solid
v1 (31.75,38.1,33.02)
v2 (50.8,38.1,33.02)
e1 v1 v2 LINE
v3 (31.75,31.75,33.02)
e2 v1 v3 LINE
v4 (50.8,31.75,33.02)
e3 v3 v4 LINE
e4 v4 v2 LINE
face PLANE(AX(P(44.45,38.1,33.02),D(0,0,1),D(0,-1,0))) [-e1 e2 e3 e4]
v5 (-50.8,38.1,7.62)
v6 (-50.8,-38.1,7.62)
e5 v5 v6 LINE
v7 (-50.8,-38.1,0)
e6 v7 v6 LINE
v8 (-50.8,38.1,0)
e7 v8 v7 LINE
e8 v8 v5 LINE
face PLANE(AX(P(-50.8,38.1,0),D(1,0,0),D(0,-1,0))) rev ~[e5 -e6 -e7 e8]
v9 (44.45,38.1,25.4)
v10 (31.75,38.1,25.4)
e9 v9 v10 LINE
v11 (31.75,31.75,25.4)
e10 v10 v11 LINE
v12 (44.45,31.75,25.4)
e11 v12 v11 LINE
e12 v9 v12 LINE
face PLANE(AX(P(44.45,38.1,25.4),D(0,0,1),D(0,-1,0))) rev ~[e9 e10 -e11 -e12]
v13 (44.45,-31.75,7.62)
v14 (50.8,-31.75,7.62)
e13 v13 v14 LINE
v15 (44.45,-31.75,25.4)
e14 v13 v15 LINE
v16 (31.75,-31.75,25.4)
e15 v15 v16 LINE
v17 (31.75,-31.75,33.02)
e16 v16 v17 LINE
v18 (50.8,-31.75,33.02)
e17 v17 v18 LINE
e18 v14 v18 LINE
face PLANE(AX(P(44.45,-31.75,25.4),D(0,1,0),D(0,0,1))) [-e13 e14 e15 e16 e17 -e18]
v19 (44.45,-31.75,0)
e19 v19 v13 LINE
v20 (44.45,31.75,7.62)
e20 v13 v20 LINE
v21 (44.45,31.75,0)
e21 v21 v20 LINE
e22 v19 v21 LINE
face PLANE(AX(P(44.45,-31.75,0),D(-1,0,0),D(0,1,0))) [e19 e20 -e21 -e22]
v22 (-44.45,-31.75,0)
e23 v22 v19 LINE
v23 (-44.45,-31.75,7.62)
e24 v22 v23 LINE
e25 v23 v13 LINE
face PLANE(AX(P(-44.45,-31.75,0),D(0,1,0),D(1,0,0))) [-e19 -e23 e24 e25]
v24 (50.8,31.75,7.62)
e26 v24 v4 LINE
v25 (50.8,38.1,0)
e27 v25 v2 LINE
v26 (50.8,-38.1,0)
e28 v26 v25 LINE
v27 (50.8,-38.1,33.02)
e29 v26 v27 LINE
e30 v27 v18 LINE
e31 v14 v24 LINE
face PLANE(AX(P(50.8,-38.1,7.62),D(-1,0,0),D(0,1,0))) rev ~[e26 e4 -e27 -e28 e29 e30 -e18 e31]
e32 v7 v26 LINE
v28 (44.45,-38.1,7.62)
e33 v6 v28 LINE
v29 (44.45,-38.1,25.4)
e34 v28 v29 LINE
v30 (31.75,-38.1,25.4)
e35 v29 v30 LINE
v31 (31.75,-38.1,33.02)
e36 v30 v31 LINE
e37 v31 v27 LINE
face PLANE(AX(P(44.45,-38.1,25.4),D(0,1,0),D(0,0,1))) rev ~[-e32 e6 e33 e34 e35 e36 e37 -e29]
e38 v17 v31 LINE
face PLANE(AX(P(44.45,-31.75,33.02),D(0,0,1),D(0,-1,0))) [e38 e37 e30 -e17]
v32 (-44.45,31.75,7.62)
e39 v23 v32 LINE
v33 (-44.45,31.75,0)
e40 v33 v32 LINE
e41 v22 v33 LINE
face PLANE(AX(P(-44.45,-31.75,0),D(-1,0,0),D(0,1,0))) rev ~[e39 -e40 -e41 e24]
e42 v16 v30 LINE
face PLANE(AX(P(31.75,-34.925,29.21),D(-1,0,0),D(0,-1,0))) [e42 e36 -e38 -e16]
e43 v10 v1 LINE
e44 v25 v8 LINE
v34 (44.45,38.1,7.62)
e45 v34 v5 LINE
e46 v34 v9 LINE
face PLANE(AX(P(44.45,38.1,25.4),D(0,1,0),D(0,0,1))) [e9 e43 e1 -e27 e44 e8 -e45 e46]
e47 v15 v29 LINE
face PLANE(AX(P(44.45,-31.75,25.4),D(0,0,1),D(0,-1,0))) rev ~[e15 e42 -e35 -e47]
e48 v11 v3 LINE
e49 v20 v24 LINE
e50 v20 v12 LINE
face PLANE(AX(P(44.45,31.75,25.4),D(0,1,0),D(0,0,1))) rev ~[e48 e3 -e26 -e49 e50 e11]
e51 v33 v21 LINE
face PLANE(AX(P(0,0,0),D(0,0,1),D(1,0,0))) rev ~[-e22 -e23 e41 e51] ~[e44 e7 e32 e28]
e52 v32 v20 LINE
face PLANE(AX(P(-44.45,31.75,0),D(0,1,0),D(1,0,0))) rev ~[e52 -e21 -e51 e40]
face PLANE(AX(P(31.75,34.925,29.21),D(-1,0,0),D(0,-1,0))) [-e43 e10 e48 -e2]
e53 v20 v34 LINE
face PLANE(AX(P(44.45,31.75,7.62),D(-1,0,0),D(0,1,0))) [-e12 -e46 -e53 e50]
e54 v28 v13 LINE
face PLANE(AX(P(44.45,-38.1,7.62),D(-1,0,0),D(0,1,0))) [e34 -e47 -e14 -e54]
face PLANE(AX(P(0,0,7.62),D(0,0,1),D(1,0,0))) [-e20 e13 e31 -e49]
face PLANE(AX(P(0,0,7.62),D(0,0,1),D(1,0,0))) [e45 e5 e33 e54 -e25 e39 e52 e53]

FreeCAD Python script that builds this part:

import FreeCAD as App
import Part
import Sketcher
from FreeCAD import Vector
Q = App.Units.Quantity

doc = App.newDocument("Part")
params = doc.addObject("Spreadsheet::Sheet", "Params")
for row, (alias, value) in enumerate([
    ("sketch1_width", "4 in"),
    ("sketch1_height", "3 in"),
    ("sketch1_width2", "3.5 in"),
    ("sketch1_height2", "2.5 in"),
    ("pad1_length", "0.3 in"),
    ("sketch2_width", "0.25 in"),
    ("pad2_length", "1 in"),
    ("sketch3_height", "0.3 in"),
    ("sketch3_width", "0.25 in"),
    ("pad3_length", "0.5 in"),
    ("sketch4_height", "0.3 in"),
    ("sketch4_width", "0.25 in"),
    ("pad4_length", "0.5 in"),
], start=1):
    params.set(f"A{row}", alias)
    params.set(f"B{row}", "=" + value)
    params.setAlias(f"B{row}", alias)

body = doc.addObject("PartDesign::Body", "Body")

# Sketch on XY plane
sketch1 = body.newObject("Sketcher::SketchObject", "Sketch")
sketch1.AttachmentSupport = (doc.getObject("XY_Plane"), [""])
sketch1.MapMode = "FlatFace"
sketch1.addGeometry(Part.LineSegment(Vector(51, 38, 0), Vector(-51, 38, 0)), False)
sketch1.addGeometry(Part.LineSegment(Vector(-51, 38, 0), Vector(-51, -38, 0)), False)
sketch1.addGeometry(Part.LineSegment(Vector(-51, -38, 0), Vector(51, -38, 0)), False)
sketch1.addGeometry(Part.LineSegment(Vector(51, -38, 0), Vector(51, 38, 0)), False)
sketch1.addGeometry(Part.LineSegment(Vector(44, -32, 0), Vector(-44, -32, 0)), False)
sketch1.addGeometry(Part.LineSegment(Vector(-44, -32, 0), Vector(-44, 32, 0)), False)
sketch1.addGeometry(Part.LineSegment(Vector(-44, 32, 0), Vector(44, 32, 0)), False)
sketch1.addGeometry(Part.LineSegment(Vector(44, 32, 0), Vector(44, -32, 0)), False)
sketch1.addConstraint(Sketcher.Constraint("Coincident", 0, 2, 1, 1))
sketch1.addConstraint(Sketcher.Constraint("Coincident", 1, 2, 2, 1))
sketch1.addConstraint(Sketcher.Constraint("Coincident", 2, 2, 3, 1))
sketch1.addConstraint(Sketcher.Constraint("Coincident", 3, 2, 0, 1))
sketch1.addConstraint(Sketcher.Constraint("Coincident", 4, 2, 5, 1))
sketch1.addConstraint(Sketcher.Constraint("Coincident", 5, 2, 6, 1))
sketch1.addConstraint(Sketcher.Constraint("Coincident", 6, 2, 7, 1))
sketch1.addConstraint(Sketcher.Constraint("Coincident", 7, 2, 4, 1))
sketch1.addConstraint(Sketcher.Constraint("Horizontal", 0))
sketch1.addConstraint(Sketcher.Constraint("Vertical", 1))
sketch1.addConstraint(Sketcher.Constraint("Horizontal", 2))
sketch1.addConstraint(Sketcher.Constraint("Vertical", 3))
sketch1.addConstraint(Sketcher.Constraint("Horizontal", 4))
sketch1.addConstraint(Sketcher.Constraint("Vertical", 5))
sketch1.addConstraint(Sketcher.Constraint("Horizontal", 6))
sketch1.addConstraint(Sketcher.Constraint("Vertical", 7))
sketch1.addConstraint(Sketcher.Constraint("Symmetric", 0, 2, 2, 2, -1, 1))
sketch1.addConstraint(Sketcher.Constraint("Symmetric", 4, 2, 6, 2, -1, 1))
sketch1.addConstraint(Sketcher.Constraint("DistanceX", 0, 2, 0, 1, Q("4 in")))
sketch1.addConstraint(Sketcher.Constraint("DistanceY", 1, 2, 1, 1, Q("3 in")))
sketch1.addConstraint(Sketcher.Constraint("DistanceX", 4, 2, 4, 1, Q("3.5 in")))
sketch1.addConstraint(Sketcher.Constraint("DistanceY", 5, 1, 5, 2, Q("2.5 in")))
sketch1.setExpression("Constraints[18]", "Params.sketch1_width")
sketch1.setExpression("Constraints[19]", "Params.sketch1_height")
sketch1.setExpression("Constraints[20]", "Params.sketch1_width2")
sketch1.setExpression("Constraints[21]", "Params.sketch1_height2")
pad1 = body.newObject("PartDesign::Pad", "Pad")
pad1.Profile = sketch1
pad1.setExpression("Length", "Params.pad1_length")

# Sketch on XY plane
sketch2 = body.newObject("Sketcher::SketchObject", "Sketch001")
sketch2.AttachmentSupport = (doc.getObject("XY_Plane"), [""])
sketch2.MapMode = "FlatFace"
sketch2.AttachmentOffset = App.Placement(Vector(0, 0, 0.3 * 25.4), App.Rotation())
sketch2.addGeometry(Part.LineSegment(Vector(44, -32, 0), Vector(44, -38, 0)), False)
sketch2.addGeometry(Part.LineSegment(Vector(44, -38, 0), Vector(51, -38, 0)), False)
sketch2.addGeometry(Part.LineSegment(Vector(51, -38, 0), Vector(51, -32, 0)), False)
sketch2.addGeometry(Part.LineSegment(Vector(51, -32, 0), Vector(44, -32, 0)), False)
sketch2.addGeometry(Part.LineSegment(Vector(44, 38, 0), Vector(44, 32, 0)), False)
sketch2.addGeometry(Part.LineSegment(Vector(44, 32, 0), Vector(51, 32, 0)), False)
sketch2.addGeometry(Part.LineSegment(Vector(51, 32, 0), Vector(51, 38, 0)), False)
sketch2.addGeometry(Part.LineSegment(Vector(51, 38, 0), Vector(44, 38, 0)), False)
sketch2.addConstraint(Sketcher.Constraint("Coincident", 0, 2, 1, 1))
sketch2.addConstraint(Sketcher.Constraint("Coincident", 1, 2, 2, 1))
sketch2.addConstraint(Sketcher.Constraint("Coincident", 2, 2, 3, 1))
sketch2.addConstraint(Sketcher.Constraint("Coincident", 3, 2, 0, 1))
sketch2.addConstraint(Sketcher.Constraint("Coincident", 4, 2, 5, 1))
sketch2.addConstraint(Sketcher.Constraint("Coincident", 5, 2, 6, 1))
sketch2.addConstraint(Sketcher.Constraint("Coincident", 6, 2, 7, 1))
sketch2.addConstraint(Sketcher.Constraint("Coincident", 7, 2, 4, 1))
sketch2.addConstraint(Sketcher.Constraint("Vertical", 0))
sketch2.addConstraint(Sketcher.Constraint("Horizontal", 1))
sketch2.addConstraint(Sketcher.Constraint("Vertical", 2))
sketch2.addConstraint(Sketcher.Constraint("Horizontal", 3))
sketch2.addConstraint(Sketcher.Constraint("Vertical", 4))
sketch2.addConstraint(Sketcher.Constraint("Horizontal", 5))
sketch2.addConstraint(Sketcher.Constraint("Vertical", 6))
sketch2.addConstraint(Sketcher.Constraint("Horizontal", 7))
sketch2.addConstraint(Sketcher.Constraint("Symmetric", 3, 2, 4, 2, -1))
sketch2.addConstraint(Sketcher.Constraint("Symmetric", 1, 2, 6, 2, -1))
sketch2.addConstraint(Sketcher.Constraint("Equal", 7, 0))
sketch2.addConstraint(Sketcher.Constraint("DistanceX", -1, 1, 1, 2, Q("2 in")))
sketch2.addConstraint(Sketcher.Constraint("DistanceY", 1, 2, 6, 2, Q("3 in")))
sketch2.addConstraint(Sketcher.Constraint("DistanceX", 1, 1, 1, 2, Q("0.25 in")))
sketch2.setExpression("Constraints[21]", "Params.sketch2_width")
pad2 = body.newObject("PartDesign::Pad", "Pad001")
pad2.Profile = sketch2
pad2.setExpression("Length", "Params.pad2_length")

# Sketch on YZ plane
sketch3 = body.newObject("Sketcher::SketchObject", "Sketch002")
sketch3.AttachmentSupport = (doc.getObject("YZ_Plane"), [""])
sketch3.MapMode = "FlatFace"
sketch3.AttachmentOffset = App.Placement(Vector(0, 0, 1.75 * 25.4), App.Rotation())
sketch3.addGeometry(Part.LineSegment(Vector(38, 33, 0), Vector(38, 25, 0)), False)
sketch3.addGeometry(Part.LineSegment(Vector(38, 25, 0), Vector(32, 25, 0)), False)
sketch3.addGeometry(Part.LineSegment(Vector(32, 25, 0), Vector(32, 33, 0)), False)
sketch3.addGeometry(Part.LineSegment(Vector(32, 33, 0), Vector(38, 33, 0)), False)
sketch3.addConstraint(Sketcher.Constraint("Coincident", 0, 2, 1, 1))
sketch3.addConstraint(Sketcher.Constraint("Coincident", 1, 2, 2, 1))
sketch3.addConstraint(Sketcher.Constraint("Coincident", 2, 2, 3, 1))
sketch3.addConstraint(Sketcher.Constraint("Coincident", 3, 2, 0, 1))
sketch3.addConstraint(Sketcher.Constraint("Vertical", 0))
sketch3.addConstraint(Sketcher.Constraint("Horizontal", 1))
sketch3.addConstraint(Sketcher.Constraint("Vertical", 2))
sketch3.addConstraint(Sketcher.Constraint("Horizontal", 3))
sketch3.addConstraint(Sketcher.Constraint("DistanceY", 0, 2, 0, 1, Q("0.3 in")))
sketch3.addConstraint(Sketcher.Constraint("DistanceY", -1, 1, 0, 2, Q("1 in")))
sketch3.addConstraint(Sketcher.Constraint("DistanceX", 1, 2, 1, 1, Q("0.25 in")))
sketch3.addConstraint(Sketcher.Constraint("DistanceX", -1, 1, 0, 2, Q("1.5 in")))
sketch3.setExpression("Constraints[8]", "Params.sketch3_height")
sketch3.setExpression("Constraints[10]", "Params.sketch3_width")
pad3 = body.newObject("PartDesign::Pad", "Pad002")
pad3.Profile = sketch3
pad3.setExpression("Length", "Params.pad3_length")
pad3.Reversed = True

# Sketch on YZ plane
sketch4 = body.newObject("Sketcher::SketchObject", "Sketch003")
sketch4.AttachmentSupport = (doc.getObject("YZ_Plane"), [""])
sketch4.MapMode = "FlatFace"
sketch4.AttachmentOffset = App.Placement(Vector(0, 0, 1.75 * 25.4), App.Rotation())
sketch4.addGeometry(Part.LineSegment(Vector(-32, 33, 0), Vector(-32, 25, 0)), False)
sketch4.addGeometry(Part.LineSegment(Vector(-32, 25, 0), Vector(-38, 25, 0)), False)
sketch4.addGeometry(Part.LineSegment(Vector(-38, 25, 0), Vector(-38, 33, 0)), False)
sketch4.addGeometry(Part.LineSegment(Vector(-38, 33, 0), Vector(-32, 33, 0)), False)
sketch4.addConstraint(Sketcher.Constraint("Coincident", 0, 2, 1, 1))
sketch4.addConstraint(Sketcher.Constraint("Coincident", 1, 2, 2, 1))
sketch4.addConstraint(Sketcher.Constraint("Coincident", 2, 2, 3, 1))
sketch4.addConstraint(Sketcher.Constraint("Coincident", 3, 2, 0, 1))
sketch4.addConstraint(Sketcher.Constraint("Vertical", 0))
sketch4.addConstraint(Sketcher.Constraint("Horizontal", 1))
sketch4.addConstraint(Sketcher.Constraint("Vertical", 2))
sketch4.addConstraint(Sketcher.Constraint("Horizontal", 3))
sketch4.addConstraint(Sketcher.Constraint("DistanceY", 0, 2, 0, 1, Q("0.3 in")))
sketch4.addConstraint(Sketcher.Constraint("DistanceY", -1, 1, 0, 2, Q("1 in")))
sketch4.addConstraint(Sketcher.Constraint("DistanceX", 1, 2, 1, 1, Q("0.25 in")))
sketch4.addConstraint(Sketcher.Constraint("DistanceX", 1, 2, -1, 1, Q("1.5 in")))
sketch4.setExpression("Constraints[8]", "Params.sketch4_height")
sketch4.setExpression("Constraints[10]", "Params.sketch4_width")
pad4 = body.newObject("PartDesign::Pad", "Pad003")
pad4.Profile = sketch4
pad4.setExpression("Length", "Params.pad4_length")
pad4.Reversed = True

doc.recompute()
